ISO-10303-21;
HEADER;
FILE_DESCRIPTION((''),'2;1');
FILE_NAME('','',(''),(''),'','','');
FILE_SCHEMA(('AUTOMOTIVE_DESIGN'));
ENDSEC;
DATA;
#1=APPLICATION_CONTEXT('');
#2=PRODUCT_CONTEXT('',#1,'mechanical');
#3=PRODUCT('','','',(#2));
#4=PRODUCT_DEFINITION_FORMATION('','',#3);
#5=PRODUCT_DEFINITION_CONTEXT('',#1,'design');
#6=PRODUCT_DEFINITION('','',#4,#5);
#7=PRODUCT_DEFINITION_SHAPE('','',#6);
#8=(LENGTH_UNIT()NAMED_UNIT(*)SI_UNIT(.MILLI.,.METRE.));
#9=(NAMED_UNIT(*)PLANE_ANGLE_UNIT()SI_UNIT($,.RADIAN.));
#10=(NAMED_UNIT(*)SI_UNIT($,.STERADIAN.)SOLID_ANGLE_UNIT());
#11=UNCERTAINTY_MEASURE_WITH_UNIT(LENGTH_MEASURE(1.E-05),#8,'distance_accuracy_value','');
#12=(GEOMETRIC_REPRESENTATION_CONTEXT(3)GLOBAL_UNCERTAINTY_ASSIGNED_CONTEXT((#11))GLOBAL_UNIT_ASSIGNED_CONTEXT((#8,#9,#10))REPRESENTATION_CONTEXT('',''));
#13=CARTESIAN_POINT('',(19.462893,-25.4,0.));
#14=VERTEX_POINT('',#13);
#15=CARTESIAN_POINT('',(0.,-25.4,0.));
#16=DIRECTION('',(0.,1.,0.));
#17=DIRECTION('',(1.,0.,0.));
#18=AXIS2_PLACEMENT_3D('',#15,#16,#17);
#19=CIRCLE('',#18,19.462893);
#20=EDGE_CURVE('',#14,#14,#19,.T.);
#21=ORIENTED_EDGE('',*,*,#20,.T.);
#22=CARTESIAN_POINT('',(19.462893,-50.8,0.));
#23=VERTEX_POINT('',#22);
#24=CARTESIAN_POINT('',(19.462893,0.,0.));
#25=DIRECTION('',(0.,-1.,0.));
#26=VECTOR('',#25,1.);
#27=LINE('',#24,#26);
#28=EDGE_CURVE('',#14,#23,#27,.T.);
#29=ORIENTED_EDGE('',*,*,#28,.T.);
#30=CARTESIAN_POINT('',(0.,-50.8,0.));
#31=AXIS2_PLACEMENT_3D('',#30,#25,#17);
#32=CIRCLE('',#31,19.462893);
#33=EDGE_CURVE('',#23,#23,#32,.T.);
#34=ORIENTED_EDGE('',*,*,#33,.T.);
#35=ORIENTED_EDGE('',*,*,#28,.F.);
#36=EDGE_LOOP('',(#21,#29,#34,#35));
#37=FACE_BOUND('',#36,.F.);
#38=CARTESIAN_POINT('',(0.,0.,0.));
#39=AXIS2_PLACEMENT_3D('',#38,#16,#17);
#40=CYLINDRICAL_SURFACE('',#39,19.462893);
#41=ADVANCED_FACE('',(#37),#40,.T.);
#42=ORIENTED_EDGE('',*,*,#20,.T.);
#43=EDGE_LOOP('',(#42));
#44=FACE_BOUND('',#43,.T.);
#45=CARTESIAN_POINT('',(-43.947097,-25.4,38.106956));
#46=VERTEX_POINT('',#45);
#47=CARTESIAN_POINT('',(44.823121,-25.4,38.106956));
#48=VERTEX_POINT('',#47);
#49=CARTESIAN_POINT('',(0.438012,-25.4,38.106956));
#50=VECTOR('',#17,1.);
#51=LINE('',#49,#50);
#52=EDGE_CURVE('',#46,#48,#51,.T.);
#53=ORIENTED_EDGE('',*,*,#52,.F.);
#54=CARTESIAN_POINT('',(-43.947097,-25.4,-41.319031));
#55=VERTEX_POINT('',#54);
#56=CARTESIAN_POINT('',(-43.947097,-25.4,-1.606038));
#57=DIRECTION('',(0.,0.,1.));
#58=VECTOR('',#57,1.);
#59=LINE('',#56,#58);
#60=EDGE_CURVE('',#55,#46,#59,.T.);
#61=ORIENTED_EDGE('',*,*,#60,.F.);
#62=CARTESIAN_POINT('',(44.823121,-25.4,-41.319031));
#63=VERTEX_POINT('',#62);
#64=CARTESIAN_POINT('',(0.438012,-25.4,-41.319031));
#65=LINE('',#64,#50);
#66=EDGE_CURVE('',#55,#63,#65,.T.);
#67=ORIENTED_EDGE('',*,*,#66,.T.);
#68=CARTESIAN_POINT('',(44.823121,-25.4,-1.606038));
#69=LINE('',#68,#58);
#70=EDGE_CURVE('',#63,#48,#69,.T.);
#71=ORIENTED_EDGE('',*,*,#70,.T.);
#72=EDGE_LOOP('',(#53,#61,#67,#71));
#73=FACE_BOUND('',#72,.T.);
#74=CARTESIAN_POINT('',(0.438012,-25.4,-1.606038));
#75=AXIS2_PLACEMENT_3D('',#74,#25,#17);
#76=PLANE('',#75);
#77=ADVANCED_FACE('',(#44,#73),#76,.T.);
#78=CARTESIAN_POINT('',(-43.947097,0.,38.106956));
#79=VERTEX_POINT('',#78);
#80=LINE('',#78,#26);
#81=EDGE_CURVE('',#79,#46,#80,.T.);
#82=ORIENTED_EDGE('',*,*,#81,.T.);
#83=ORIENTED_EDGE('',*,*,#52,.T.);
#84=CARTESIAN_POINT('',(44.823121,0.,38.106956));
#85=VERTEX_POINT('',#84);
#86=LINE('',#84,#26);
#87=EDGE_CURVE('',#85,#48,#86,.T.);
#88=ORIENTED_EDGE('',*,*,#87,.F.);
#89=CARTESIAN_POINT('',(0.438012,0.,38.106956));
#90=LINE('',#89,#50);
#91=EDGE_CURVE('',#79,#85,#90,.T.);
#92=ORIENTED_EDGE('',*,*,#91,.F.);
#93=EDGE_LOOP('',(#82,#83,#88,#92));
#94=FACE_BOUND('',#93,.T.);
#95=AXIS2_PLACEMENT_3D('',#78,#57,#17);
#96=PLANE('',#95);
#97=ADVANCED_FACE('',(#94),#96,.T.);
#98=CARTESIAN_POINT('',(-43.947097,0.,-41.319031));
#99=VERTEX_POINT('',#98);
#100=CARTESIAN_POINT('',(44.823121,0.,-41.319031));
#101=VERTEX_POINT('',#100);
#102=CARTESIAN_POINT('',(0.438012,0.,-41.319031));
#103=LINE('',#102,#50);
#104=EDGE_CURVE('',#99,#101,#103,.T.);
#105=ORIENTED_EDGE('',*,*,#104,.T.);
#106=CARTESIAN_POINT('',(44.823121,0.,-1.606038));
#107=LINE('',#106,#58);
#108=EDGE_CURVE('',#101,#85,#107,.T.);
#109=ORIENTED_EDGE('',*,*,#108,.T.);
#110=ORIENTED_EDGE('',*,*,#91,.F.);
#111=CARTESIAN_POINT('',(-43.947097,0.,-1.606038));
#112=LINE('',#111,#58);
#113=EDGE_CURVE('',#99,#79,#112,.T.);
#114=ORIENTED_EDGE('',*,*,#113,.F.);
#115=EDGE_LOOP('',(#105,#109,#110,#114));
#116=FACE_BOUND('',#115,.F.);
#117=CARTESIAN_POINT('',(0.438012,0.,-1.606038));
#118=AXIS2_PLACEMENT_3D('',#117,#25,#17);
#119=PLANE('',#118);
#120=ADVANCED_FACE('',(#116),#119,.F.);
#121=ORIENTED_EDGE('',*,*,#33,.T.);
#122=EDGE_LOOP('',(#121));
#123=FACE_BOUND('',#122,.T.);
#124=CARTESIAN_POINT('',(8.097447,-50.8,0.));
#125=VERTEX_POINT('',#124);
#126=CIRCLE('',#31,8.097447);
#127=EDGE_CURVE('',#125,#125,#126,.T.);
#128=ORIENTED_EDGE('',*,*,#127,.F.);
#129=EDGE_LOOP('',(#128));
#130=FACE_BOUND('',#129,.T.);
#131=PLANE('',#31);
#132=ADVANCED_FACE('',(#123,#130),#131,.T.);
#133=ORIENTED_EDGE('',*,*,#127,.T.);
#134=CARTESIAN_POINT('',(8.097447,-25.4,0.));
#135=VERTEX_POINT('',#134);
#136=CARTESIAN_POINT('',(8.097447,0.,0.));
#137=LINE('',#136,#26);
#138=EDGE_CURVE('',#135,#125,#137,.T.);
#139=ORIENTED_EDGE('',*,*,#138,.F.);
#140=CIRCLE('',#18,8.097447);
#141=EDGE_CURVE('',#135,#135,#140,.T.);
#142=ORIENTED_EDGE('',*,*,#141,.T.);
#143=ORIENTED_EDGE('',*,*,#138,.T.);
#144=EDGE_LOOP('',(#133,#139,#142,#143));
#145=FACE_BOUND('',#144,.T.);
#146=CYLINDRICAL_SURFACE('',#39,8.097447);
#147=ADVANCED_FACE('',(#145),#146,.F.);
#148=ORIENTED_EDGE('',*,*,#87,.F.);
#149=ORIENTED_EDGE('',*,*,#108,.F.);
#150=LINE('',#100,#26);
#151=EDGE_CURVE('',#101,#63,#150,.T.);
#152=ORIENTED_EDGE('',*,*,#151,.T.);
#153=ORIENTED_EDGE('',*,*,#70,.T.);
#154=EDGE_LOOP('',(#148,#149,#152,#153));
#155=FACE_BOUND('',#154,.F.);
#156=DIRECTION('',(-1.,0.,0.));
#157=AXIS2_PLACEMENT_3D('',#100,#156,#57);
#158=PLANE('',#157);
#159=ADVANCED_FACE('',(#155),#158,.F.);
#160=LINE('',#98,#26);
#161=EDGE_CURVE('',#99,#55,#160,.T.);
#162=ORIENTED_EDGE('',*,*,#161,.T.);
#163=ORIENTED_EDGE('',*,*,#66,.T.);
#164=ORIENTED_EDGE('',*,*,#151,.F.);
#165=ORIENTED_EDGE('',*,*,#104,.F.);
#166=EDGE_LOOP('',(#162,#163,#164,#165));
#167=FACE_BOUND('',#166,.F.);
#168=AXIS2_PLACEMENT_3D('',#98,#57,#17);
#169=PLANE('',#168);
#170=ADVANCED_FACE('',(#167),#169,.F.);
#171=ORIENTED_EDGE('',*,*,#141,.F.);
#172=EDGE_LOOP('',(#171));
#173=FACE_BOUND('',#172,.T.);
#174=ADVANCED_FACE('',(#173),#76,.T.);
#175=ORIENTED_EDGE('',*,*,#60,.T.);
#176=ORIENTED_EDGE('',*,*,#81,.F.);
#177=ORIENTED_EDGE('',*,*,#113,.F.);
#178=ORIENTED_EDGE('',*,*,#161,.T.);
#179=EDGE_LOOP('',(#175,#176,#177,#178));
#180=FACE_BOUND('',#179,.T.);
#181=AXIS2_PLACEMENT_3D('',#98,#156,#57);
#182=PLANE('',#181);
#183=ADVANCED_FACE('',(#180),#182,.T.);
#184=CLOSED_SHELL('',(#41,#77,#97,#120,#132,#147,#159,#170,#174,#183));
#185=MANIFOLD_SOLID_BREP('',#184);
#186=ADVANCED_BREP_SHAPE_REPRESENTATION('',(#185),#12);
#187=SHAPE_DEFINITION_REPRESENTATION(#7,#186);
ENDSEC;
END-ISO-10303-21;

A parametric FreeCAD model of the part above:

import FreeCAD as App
import Part
import Sketcher
Q = App.Units.Quantity


def add_polygon(sketch, points):
    """Adds a closed chain of lines whose ends are joined by coincident constraints."""
    first, n = sketch.GeometryCount, len(points)
    for a, b in zip(points, points[1:] + points[:1]):
        sketch.addGeometry(Part.LineSegment(App.Vector(*a, 0), App.Vector(*b, 0)), False)
    for i in range(n):
        sketch.addConstraint(Sketcher.Constraint("Coincident", first + i, 2, first + (i + 1) % n, 1))

doc = App.newDocument("Part")
body = doc.addObject("PartDesign::Body", "Body")

# Sketch on XZ plane
sketch1 = body.newObject("Sketcher::SketchObject", "Sketch")
sketch1.AttachmentSupport = (doc.getObject("XZ_Plane"), [""])
sketch1.MapMode = "FlatFace"
sketch1.addGeometry([
    Part.Circle(App.Vector(0, 0, 0), App.Vector(0, 0, 1), 19),
    Part.Circle(App.Vector(0, 0, 0), App.Vector(0, 0, 1), 8),
], False)
sketch1.addConstraint([
    Sketcher.Constraint("Coincident", 0, 3, -1, 1),
    Sketcher.Constraint("Coincident", 1, 3, -1, 1),
    Sketcher.Constraint("Diameter", 0, Q("38.925785 mm")),
    Sketcher.Constraint("Diameter", 1, Q("16.194893 mm")),
])
pad1 = body.newObject("PartDesign::Pad", "Pad")
pad1.Profile = sketch1
pad1.Length = Q("2 in")

# Sketch on XZ plane
sketch2 = body.newObject("Sketcher::SketchObject", "Sketch001")
sketch2.AttachmentSupport = (doc.getObject("XZ_Plane"), [""])
sketch2.MapMode = "FlatFace"
add_polygon(sketch2, [(-44, 38), (-44, -41), (45, -41), (45, 38)])  # lines 0-3
sketch2.addConstraint([
    Sketcher.Constraint("Vertical", 0),
    Sketcher.Constraint("Horizontal", 1),
    Sketcher.Constraint("Vertical", 2),
    Sketcher.Constraint("Horizontal", 3),
    Sketcher.Constraint("DistanceX", 1, 1, 1, 2, Q("88.770218 mm")),
    Sketcher.Constraint("DistanceY", 0, 2, 0, 1, Q("79.425987 mm")),
    Sketcher.Constraint("DistanceY", 0, 2, -1, 1, Q("41.319031 mm")),
    Sketcher.Constraint("DistanceX", -1, 1, 1, 2, Q("44.823121 mm")),
])
pad2 = body.newObject("PartDesign::Pad", "Pad001")
pad2.Profile = sketch2
pad2.Length = Q("1 in")

doc.recompute()
